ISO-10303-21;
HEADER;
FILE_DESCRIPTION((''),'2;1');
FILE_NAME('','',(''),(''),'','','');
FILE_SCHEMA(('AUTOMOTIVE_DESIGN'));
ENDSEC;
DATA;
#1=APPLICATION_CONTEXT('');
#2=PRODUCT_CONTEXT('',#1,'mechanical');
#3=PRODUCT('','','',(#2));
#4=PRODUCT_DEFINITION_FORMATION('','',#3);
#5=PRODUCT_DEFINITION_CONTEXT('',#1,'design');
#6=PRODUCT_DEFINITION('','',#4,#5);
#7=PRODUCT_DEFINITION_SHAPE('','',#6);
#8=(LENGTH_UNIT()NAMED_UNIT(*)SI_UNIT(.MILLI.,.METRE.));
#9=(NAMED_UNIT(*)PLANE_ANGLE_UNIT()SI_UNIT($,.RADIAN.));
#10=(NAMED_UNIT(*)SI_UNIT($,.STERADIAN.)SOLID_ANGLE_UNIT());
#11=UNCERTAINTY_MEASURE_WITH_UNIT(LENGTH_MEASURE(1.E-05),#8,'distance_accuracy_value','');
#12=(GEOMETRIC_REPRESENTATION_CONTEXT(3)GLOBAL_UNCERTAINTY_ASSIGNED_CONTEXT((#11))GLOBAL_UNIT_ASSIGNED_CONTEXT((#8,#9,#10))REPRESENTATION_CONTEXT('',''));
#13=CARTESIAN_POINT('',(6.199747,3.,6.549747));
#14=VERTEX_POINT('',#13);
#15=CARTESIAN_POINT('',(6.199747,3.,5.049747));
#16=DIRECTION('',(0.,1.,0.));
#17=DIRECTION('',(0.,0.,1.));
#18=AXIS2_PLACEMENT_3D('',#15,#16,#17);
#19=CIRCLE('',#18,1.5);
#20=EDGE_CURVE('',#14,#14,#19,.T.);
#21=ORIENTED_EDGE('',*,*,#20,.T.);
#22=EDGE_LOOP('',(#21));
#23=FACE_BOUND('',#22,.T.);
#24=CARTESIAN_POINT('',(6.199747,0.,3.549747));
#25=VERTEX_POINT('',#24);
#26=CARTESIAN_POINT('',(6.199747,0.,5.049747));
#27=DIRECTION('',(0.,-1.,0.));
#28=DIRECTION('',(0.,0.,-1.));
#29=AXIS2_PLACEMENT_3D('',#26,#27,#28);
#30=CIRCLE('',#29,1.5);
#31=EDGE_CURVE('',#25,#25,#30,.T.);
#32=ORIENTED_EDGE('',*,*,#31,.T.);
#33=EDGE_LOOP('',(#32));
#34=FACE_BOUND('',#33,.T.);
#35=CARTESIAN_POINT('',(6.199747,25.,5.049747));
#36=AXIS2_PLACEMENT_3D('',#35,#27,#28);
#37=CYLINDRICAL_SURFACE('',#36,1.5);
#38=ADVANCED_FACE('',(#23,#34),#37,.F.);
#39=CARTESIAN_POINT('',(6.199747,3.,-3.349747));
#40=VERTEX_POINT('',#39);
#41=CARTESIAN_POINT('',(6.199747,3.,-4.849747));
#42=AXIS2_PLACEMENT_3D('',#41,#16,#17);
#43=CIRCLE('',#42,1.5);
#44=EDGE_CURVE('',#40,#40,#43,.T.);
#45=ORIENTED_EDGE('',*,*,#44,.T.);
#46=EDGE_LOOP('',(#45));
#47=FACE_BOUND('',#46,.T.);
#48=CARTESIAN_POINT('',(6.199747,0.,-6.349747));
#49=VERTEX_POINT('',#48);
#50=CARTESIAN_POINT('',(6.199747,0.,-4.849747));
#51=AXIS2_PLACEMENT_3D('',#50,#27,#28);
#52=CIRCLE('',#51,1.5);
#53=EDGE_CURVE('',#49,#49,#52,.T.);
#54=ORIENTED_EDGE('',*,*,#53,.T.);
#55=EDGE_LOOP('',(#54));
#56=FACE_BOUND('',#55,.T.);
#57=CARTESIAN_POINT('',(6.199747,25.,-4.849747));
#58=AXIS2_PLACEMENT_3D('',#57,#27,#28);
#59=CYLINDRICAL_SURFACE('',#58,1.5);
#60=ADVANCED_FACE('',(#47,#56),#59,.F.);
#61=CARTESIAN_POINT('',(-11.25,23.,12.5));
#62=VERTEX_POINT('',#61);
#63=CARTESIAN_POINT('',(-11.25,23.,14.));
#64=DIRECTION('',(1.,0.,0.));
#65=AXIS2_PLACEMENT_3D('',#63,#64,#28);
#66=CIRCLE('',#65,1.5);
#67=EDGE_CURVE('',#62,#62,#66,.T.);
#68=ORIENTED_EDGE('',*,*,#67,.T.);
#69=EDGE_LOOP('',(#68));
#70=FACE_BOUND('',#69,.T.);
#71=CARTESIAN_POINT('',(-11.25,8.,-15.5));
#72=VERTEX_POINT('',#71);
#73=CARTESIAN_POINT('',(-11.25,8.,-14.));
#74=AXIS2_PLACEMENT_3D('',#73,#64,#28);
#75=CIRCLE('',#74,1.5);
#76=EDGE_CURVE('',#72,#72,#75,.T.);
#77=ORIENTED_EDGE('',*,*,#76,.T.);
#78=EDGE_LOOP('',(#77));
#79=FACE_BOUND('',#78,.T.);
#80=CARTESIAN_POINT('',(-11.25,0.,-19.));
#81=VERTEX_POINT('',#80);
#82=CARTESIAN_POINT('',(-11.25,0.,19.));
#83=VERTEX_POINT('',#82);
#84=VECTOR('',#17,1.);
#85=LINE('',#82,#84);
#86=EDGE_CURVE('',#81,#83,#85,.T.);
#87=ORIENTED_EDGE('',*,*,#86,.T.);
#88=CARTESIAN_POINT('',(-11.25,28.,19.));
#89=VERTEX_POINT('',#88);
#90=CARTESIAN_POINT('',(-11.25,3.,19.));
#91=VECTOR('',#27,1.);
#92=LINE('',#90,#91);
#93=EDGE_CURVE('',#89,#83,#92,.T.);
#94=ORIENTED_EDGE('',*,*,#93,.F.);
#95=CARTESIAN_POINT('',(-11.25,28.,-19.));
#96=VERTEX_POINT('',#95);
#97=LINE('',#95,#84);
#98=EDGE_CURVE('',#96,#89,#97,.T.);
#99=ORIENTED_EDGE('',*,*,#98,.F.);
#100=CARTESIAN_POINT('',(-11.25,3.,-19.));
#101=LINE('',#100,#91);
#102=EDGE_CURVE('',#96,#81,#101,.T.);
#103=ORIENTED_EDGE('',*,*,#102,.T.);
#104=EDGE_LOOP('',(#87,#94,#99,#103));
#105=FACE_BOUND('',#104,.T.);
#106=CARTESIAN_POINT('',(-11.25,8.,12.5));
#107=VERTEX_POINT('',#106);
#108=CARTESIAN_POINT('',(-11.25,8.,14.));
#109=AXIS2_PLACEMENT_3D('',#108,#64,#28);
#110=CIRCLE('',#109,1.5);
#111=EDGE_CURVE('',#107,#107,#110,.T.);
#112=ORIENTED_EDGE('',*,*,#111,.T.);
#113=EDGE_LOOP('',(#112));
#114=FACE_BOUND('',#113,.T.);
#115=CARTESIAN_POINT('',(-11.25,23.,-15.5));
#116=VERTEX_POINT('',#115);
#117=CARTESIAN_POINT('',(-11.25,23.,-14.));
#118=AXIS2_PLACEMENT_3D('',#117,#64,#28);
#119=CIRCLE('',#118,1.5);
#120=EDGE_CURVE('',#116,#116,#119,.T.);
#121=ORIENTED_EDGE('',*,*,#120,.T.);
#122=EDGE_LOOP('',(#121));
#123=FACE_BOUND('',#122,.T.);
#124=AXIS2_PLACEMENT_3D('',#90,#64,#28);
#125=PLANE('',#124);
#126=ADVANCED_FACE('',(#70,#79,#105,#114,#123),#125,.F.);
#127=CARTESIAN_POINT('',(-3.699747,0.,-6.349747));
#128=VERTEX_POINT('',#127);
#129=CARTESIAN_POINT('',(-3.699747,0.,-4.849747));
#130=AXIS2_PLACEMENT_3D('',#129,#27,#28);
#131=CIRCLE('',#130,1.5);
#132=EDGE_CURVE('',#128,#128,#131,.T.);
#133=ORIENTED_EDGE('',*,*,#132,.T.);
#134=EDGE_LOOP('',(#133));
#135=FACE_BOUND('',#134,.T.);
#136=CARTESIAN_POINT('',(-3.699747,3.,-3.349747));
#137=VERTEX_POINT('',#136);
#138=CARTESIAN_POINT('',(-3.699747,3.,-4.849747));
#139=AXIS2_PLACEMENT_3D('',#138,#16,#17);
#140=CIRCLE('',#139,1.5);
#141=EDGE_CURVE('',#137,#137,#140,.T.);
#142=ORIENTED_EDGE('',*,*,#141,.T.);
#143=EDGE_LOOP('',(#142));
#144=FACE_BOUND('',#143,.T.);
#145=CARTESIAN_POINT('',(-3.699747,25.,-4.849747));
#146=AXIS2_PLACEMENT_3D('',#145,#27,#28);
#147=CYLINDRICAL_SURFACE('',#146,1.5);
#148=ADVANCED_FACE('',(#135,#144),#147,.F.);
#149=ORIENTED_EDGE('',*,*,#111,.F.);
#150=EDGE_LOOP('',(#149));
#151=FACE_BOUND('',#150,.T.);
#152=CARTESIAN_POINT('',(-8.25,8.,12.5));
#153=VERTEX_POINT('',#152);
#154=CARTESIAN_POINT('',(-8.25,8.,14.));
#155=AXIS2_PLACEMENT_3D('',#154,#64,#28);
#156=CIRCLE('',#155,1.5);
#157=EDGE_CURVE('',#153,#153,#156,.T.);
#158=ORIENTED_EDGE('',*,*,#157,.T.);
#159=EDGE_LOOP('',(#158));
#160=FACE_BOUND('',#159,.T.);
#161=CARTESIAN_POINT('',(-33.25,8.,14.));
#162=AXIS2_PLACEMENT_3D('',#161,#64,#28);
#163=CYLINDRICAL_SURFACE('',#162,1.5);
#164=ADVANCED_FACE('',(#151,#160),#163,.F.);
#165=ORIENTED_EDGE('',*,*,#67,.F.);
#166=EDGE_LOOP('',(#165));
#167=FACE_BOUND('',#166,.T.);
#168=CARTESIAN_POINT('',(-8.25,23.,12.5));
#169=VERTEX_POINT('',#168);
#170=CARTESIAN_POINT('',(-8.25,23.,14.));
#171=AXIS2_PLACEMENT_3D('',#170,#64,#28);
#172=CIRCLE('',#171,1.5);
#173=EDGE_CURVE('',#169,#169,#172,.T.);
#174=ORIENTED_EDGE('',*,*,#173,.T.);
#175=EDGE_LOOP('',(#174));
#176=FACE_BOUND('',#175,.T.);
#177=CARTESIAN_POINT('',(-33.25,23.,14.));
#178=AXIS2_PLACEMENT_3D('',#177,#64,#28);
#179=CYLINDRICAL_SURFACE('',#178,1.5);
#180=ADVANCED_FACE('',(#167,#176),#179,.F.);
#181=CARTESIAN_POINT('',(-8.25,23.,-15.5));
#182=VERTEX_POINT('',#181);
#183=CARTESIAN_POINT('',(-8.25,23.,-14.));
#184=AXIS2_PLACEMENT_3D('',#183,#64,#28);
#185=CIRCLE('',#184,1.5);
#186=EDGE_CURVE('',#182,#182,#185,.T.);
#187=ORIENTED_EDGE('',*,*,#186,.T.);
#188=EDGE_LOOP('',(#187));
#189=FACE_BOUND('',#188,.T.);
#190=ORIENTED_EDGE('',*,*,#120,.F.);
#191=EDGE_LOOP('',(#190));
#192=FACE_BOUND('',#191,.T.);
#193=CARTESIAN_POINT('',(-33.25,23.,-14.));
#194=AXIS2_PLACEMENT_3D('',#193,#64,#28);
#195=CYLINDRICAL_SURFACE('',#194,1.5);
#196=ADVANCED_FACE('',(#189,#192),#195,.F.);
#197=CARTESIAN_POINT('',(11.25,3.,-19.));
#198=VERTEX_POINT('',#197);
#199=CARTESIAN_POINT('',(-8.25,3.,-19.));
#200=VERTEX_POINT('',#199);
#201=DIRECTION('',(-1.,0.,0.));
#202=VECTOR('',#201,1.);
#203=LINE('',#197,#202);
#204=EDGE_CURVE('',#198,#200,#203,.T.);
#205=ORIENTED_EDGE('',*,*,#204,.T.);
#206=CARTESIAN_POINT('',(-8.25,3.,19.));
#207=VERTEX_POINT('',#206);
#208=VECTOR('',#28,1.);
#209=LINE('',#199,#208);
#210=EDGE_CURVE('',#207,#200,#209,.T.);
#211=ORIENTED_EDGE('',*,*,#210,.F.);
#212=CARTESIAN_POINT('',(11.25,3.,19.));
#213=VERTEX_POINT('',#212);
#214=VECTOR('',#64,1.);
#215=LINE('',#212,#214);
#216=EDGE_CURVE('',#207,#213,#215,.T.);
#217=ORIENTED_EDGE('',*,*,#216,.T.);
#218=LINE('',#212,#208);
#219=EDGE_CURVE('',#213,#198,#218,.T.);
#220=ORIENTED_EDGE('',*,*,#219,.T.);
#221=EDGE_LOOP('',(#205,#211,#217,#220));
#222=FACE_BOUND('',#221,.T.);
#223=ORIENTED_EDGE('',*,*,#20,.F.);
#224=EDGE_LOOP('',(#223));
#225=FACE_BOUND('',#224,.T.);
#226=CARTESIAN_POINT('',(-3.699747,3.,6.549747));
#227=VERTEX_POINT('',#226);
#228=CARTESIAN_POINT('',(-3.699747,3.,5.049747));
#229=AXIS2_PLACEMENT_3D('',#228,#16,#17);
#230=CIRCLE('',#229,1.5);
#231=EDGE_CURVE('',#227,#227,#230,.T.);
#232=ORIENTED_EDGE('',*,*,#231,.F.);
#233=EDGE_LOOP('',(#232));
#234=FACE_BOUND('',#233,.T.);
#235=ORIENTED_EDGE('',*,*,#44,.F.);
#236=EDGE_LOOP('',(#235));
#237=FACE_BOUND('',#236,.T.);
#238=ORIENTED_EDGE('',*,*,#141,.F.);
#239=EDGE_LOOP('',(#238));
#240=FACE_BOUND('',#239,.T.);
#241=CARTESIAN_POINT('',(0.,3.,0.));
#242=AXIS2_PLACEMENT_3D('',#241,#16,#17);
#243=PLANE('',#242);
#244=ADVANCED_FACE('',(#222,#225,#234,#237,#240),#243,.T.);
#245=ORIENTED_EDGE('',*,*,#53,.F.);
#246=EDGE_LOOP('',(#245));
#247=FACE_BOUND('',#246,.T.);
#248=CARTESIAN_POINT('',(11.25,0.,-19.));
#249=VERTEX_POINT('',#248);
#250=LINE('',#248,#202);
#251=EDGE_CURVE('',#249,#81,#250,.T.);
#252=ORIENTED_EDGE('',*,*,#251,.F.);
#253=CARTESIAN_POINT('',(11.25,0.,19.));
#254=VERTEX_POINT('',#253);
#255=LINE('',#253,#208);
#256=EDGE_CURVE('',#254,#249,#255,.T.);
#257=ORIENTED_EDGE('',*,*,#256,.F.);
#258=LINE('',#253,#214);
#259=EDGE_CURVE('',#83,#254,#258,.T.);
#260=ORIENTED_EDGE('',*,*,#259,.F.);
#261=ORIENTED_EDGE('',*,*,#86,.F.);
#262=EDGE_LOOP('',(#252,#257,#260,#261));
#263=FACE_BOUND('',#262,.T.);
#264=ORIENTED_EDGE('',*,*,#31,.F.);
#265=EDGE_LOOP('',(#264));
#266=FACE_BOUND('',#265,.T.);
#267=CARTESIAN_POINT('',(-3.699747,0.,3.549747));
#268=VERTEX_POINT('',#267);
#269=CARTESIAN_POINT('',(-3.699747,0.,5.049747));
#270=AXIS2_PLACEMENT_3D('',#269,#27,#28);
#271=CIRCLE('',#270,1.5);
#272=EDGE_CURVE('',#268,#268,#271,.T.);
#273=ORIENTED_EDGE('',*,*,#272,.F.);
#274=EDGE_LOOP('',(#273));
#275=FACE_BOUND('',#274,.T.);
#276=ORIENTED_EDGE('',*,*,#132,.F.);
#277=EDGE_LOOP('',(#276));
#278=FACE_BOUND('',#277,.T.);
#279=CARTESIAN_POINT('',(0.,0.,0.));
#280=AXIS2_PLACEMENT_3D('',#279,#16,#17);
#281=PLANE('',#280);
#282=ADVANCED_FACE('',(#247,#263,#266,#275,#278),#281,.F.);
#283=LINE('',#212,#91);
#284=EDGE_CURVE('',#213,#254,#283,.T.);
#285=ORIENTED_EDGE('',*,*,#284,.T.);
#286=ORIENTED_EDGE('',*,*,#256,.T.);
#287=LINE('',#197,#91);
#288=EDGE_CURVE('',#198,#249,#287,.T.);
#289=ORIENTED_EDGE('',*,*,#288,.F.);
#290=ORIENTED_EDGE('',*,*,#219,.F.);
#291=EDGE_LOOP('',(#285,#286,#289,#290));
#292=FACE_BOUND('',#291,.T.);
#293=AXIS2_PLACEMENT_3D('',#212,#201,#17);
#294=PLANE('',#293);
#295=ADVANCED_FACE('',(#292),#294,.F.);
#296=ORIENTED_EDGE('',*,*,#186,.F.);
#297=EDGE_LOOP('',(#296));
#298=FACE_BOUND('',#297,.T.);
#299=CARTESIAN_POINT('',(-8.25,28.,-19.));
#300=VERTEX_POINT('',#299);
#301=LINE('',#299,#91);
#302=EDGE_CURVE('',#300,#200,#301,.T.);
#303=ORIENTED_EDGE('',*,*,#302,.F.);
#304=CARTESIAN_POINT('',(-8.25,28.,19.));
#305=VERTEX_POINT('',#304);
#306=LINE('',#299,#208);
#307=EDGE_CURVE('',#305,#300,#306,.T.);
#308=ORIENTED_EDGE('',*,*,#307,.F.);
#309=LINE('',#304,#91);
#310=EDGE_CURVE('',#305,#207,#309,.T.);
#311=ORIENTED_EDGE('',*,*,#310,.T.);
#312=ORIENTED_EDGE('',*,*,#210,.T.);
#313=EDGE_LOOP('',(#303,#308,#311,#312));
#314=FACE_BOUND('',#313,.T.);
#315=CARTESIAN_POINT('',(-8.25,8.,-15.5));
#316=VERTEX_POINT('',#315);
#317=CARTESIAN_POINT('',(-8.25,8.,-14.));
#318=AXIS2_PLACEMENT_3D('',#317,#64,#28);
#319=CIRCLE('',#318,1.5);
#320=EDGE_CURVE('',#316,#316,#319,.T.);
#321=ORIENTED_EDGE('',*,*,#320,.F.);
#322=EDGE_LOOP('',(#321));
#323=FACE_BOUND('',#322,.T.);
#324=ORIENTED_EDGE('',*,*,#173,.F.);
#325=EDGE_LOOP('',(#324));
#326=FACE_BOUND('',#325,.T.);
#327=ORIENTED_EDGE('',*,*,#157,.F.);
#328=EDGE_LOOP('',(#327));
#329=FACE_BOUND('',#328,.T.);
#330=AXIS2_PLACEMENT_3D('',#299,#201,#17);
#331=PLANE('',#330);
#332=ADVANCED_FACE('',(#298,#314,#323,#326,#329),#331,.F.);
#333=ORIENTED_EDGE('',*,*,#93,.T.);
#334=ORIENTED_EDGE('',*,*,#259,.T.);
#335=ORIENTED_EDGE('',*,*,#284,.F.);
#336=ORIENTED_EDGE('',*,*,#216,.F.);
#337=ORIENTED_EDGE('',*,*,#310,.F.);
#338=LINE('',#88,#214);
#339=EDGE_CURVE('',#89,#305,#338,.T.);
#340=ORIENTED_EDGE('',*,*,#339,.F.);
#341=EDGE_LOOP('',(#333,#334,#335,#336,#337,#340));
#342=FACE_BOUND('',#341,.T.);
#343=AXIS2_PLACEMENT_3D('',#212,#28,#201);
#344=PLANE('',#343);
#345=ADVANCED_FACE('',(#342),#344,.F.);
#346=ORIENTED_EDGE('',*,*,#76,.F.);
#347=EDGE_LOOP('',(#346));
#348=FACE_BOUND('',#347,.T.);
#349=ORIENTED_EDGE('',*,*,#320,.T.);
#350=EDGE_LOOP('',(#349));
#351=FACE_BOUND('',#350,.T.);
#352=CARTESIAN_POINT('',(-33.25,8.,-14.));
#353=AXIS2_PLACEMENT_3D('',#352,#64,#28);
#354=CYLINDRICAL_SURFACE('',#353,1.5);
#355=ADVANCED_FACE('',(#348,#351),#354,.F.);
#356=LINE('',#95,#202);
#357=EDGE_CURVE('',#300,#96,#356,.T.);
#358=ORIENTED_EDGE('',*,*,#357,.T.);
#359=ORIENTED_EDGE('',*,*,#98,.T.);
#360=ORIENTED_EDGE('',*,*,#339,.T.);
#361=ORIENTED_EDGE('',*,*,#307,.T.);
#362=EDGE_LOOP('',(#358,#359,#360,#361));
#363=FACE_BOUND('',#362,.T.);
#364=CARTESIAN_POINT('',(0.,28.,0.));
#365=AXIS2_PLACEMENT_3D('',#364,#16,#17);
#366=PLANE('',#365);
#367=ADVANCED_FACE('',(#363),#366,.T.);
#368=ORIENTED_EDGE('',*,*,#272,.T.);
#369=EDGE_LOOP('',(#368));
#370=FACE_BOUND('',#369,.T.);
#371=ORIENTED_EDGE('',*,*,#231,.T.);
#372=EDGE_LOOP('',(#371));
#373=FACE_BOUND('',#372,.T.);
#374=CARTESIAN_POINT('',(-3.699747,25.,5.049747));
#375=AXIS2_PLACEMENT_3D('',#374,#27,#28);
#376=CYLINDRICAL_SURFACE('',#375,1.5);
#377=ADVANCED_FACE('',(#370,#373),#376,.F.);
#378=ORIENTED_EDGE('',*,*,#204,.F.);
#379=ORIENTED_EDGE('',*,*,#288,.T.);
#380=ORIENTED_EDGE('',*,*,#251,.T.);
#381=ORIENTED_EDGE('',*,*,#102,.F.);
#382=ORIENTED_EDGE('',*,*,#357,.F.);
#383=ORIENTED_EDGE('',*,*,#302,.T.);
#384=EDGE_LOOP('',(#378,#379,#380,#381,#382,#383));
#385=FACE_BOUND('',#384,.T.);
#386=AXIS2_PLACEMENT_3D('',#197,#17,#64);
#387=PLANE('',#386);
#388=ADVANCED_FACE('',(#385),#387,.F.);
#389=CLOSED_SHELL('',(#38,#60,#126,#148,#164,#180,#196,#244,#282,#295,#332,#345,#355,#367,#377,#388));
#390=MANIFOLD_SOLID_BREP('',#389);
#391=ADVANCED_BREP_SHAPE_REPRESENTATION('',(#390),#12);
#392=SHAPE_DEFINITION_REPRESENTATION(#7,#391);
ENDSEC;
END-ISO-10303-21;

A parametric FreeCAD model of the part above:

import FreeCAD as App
import Part
import Sketcher
from FreeCAD import Vector
Q = App.Units.Quantity

doc = App.newDocument("Part")
body = doc.addObject("PartDesign::Body", "Body")

# Sketch on XZ plane
sketch1 = body.newObject("Sketcher::SketchObject", "Sketch")
sketch1.AttachmentSupport = (doc.getObject("XZ_Plane"), [""])
sketch1.MapMode = "FlatFace"
sketch1.addGeometry([
    Part.LineSegment(Vector(-11.25, -19, 0), Vector(-11.25, 19, 0)),
    Part.LineSegment(Vector(-11.25, 19, 0), Vector(11.25, 19, 0)),
    Part.LineSegment(Vector(11.25, 19, 0), Vector(11.25, -19, 0)),
    Part.LineSegment(Vector(11.25, -19, 0), Vector(-11.25, -19, 0)),
], False)
sketch1.addConstraint([
    Sketcher.Constraint("Coincident", 0, 2, 1, 1),
    Sketcher.Constraint("Coincident", 1, 2, 2, 1),
    Sketcher.Constraint("Coincident", 2, 2, 3, 1),
    Sketcher.Constraint("Coincident", 3, 2, 0, 1),
    Sketcher.Constraint("Vertical", 0),
    Sketcher.Constraint("Horizontal", 1),
    Sketcher.Constraint("Vertical", 2),
    Sketcher.Constraint("Horizontal", 3),
    Sketcher.Constraint("Symmetric", 0, 2, 2, 2, -1, 1),
    Sketcher.Constraint("DistanceY", 0, 1, 0, 2, Q("38 mm")),
    Sketcher.Constraint("DistanceX", 1, 1, 1, 2, Q("22.5 mm")),
])
pad1 = body.newObject("PartDesign::Pad", "Pad")
pad1.Profile = sketch1
pad1.Length = 3
pad1.Reversed = True

# Sketch on XZ plane
sketch2 = body.newObject("Sketcher::SketchObject", "Sketch001")
sketch2.AttachmentSupport = (doc.getObject("XZ_Plane"), [""])
sketch2.MapMode = "FlatFace"
sketch2.AttachmentOffset = App.Placement(Vector(0, 0, -3), App.Rotation())
sketch2.addGeometry([
    Part.LineSegment(Vector(-11.25, -19, 0), Vector(-11.25, 19, 0)),
    Part.LineSegment(Vector(-11.25, 19, 0), Vector(-8.25, 19, 0)),
    Part.LineSegment(Vector(-8.25, 19, 0), Vector(-8.25, -19, 0)),
    Part.LineSegment(Vector(-8.25, -19, 0), Vector(-11.25, -19, 0)),
], False)
sketch2.addConstraint([
    Sketcher.Constraint("Coincident", 0, 2, 1, 1),
    Sketcher.Constraint("Coincident", 1, 2, 2, 1),
    Sketcher.Constraint("Coincident", 2, 2, 3, 1),
    Sketcher.Constraint("Coincident", 3, 2, 0, 1),
    Sketcher.Constraint("Vertical", 0),
    Sketcher.Constraint("Horizontal", 1),
    Sketcher.Constraint("Vertical", 2),
    Sketcher.Constraint("Horizontal", 3),
    Sketcher.Constraint("DistanceX", 1, 1, 1, 2, Q("3 mm")),
    Sketcher.Constraint("DistanceY", 0, 1, 0, 2, Q("38 mm")),
    Sketcher.Constraint("DistanceY", -1, 1, 0, 2, Q("19 mm")),
    Sketcher.Constraint("DistanceX", 0, 2, -1, 1, Q("11.25 mm")),
])
pad2 = body.newObject("PartDesign::Pad", "Pad001")
pad2.Profile = sketch2
pad2.Length = 25
pad2.Reversed = True

# Sketch on XZ plane
sketch3 = body.newObject("Sketcher::SketchObject", "Sketch002")
sketch3.AttachmentSupport = (doc.getObject("XZ_Plane"), [""])
sketch3.MapMode = "FlatFace"
sketch3.addGeometry([
    Part.Circle(Vector(-3.699747, 5.049747, 0), Vector(0, 0, 1), 1.5),
    Part.Circle(Vector(6.199747, 5.049747, 0), Vector(0, 0, 1), 1.5),
    Part.Circle(Vector(-3.699747, -4.849747, 0), Vector(0, 0, 1), 1.5),
    Part.Circle(Vector(6.199747, -4.849747, 0), Vector(0, 0, 1), 1.5),
], False)
sketch3.addConstraint([
    Sketcher.Constraint("Equal", 0, 1),
    Sketcher.Constraint("Equal", 1, 2),
    Sketcher.Constraint("Equal", 2, 3),
    Sketcher.Constraint("Horizontal", 0, 3, 1, 3),
    Sketcher.Constraint("Horizontal", 2, 3, 3, 3),
    Sketcher.Constraint("Vertical", 0, 3, 2, 3),
    Sketcher.Constraint("Vertical", 1, 3, 3, 3),
    Sketcher.Constraint("Diameter", 0, Q("3 mm")),
    Sketcher.Constraint("DistanceX", 0, 3, -1, 1, Q("3.699747 mm")),
    Sketcher.Constraint("DistanceY", -1, 1, 0, 3, Q("5.049747 mm")),
    Sketcher.Constraint("DistanceX", -1, 1, 1, 3, Q("6.199747 mm")),
    Sketcher.Constraint("DistanceY", 2, 3, -1, 1, Q("4.849747 mm")),
])
pocket1 = body.newObject("PartDesign::Pocket", "Pocket")
pocket1.Profile = sketch3
pocket1.Length = 25

# Sketch on YZ plane
sketch4 = body.newObject("Sketcher::SketchObject", "Sketch003")
sketch4.AttachmentSupport = (doc.getObject("YZ_Plane"), [""])
sketch4.MapMode = "FlatFace"
sketch4.AttachmentOffset = App.Placement(Vector(0, 0, -8.25), App.Rotation())
sketch4.addGeometry([
    Part.Circle(Vector(23, -14, 0), Vector(0, 0, 1), 1.5),
    Part.Circle(Vector(23, 14, 0), Vector(0, 0, 1), 1.5),
    Part.Circle(Vector(8, 14, 0), Vector(0, 0, 1), 1.5),
    Part.Circle(Vector(8, -14, 0), Vector(0, 0, 1), 1.5),
], False)
sketch4.addConstraint([
    Sketcher.Constraint("Equal", 0, 1),
    Sketcher.Constraint("Equal", 1, 2),
    Sketcher.Constraint("Equal", 2, 3),
    Sketcher.Constraint("Symmetric", 0, 3, 1, 3, -1),
    Sketcher.Constraint("Symmetric", 2, 3, 3, 3, -1),
    Sketcher.Constraint("Horizontal", 1, 3, 2, 3),
    Sketcher.Constraint("Diameter", 0, Q("3 mm")),
    Sketcher.Constraint("DistanceX", -1, 1, 0, 3, Q("23 mm")),
    Sketcher.Constraint("DistanceY", 0, 3, -1, 1, Q("14 mm")),
    Sketcher.Constraint("DistanceX", -1, 1, 2, 3, Q("8 mm")),
])
pocket2 = body.newObject("PartDesign::Pocket", "Pocket001")
pocket2.Profile = sketch4
pocket2.Length = 25

doc.recompute()
